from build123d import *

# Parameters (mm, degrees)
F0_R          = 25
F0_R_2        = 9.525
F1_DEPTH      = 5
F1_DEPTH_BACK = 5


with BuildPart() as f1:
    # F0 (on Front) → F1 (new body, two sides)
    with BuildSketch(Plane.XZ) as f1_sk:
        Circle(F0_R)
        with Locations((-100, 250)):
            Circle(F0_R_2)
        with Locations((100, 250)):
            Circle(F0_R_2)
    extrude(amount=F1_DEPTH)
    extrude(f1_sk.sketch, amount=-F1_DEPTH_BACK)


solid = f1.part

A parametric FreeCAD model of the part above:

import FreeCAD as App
import Part
import Sketcher

V = App.Vector
Q = App.Units.Quantity

doc = App.newDocument("Part")
body = doc.addObject("PartDesign::Body", "Body")
body.AllowCompound = True

sketch1 = body.newObject("Sketcher::SketchObject", "Sketch")
sketch1.AttachmentSupport = (doc.getObject("XZ_Plane"), [""])
sketch1.MapMode = "FlatFace"
sketch1.addGeometry(Part.Circle(V(0, 0, 0), V(0, 0, 1), 25), False)
sketch1.addGeometry(Part.Circle(V(-100, 250, 0), V(0, 0, 1), 10), False)
sketch1.addGeometry(Part.Circle(V(100, 250, 0), V(0, 0, 1), 10), False)
sketch1.addConstraint(Sketcher.Constraint("Coincident", 0, 3, -1, 1))
sketch1.addConstraint(Sketcher.Constraint("Equal", 1, 2))
sketch1.addConstraint(Sketcher.Constraint("Symmetric", 1, 3, 2, 3, -2))
sketch1.addConstraint(Sketcher.Constraint("Diameter", 0, Q("50 mm")))
sketch1.addConstraint(Sketcher.Constraint("Diameter", 1, Q("19.05 mm")))
sketch1.addConstraint(Sketcher.Constraint("DistanceX", 1, 3, -1, 1, Q("100 mm")))
sketch1.addConstraint(Sketcher.Constraint("DistanceY", -1, 1, 1, 3, Q("250 mm")))
pad1 = body.newObject("PartDesign::Pad", "Pad")
pad1.Profile = sketch1
pad1.Type = "TwoLengths"
pad1.Length = 5
pad1.Length2 = 5

doc.recompute()
